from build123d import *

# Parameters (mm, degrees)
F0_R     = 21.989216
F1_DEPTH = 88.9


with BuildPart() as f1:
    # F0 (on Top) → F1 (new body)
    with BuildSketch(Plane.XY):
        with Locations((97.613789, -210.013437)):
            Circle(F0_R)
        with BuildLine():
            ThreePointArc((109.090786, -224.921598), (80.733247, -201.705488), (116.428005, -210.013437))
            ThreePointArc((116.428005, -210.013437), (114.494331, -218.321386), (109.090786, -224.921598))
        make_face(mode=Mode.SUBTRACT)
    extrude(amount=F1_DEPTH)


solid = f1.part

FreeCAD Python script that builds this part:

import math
import FreeCAD as App
import Part
import Sketcher
from FreeCAD import Vector
Q = App.Units.Quantity

doc = App.newDocument("Part")
body = doc.addObject("PartDesign::Body", "Body")

# Sketch on XY plane
sketch1 = doc.addObject("Sketcher::SketchObject", "Sketch")
body.addObject(sketch1)
sketch1.AttachmentSupport = (doc.XY_Plane, [""])
sketch1.MapMode = "FlatFace"
sketch1.addGeometry([
    Part.Circle(Vector(97.613789, -210.013437, 0), Vector(0, 0, 1), 21.989216),
    Part.ArcOfCircle(Part.Circle(Vector(97.613787, -210.013436, 0), Vector(0, 0, 1), 18.814218), math.radians(-52.409244), math.radians(-0.000003)),
    Part.ArcOfCircle(Part.Circle(Vector(97.613789, -210.013437, 0), Vector(0, 0, 1), 18.814216), math.radians(0), math.radians(307.590753)),
], False)
sketch1.addConstraint([
    Sketcher.Constraint("Tangent", 1, 1, 2, 2),
    Sketcher.Constraint("Coincident", 2, 1, 1, 2),
    Sketcher.Constraint("Coincident", 1, 3, 0, 3),
    Sketcher.Constraint("Horizontal", 1, 3, 2, 1),
    Sketcher.Constraint("Diameter", 0, Q("43.978432 mm")),
    Sketcher.Constraint("Radius", 1, Q("18.814218 mm")),
    Sketcher.Constraint("DistanceY", 1, 1, -1, 1, Q("224.921598 mm")),
    Sketcher.Constraint("DistanceX", 1, 3, 1, 1, Q("11.476999 mm")),
    Sketcher.Constraint("DistanceX", -1, 1, 0, 3, Q("97.613789 mm")),
])
pad1 = doc.addObject("PartDesign::Pad", "Pad")
body.addObject(pad1)
pad1.Profile = sketch1
pad1.Length = Q("3.5 in")

doc.recompute()
